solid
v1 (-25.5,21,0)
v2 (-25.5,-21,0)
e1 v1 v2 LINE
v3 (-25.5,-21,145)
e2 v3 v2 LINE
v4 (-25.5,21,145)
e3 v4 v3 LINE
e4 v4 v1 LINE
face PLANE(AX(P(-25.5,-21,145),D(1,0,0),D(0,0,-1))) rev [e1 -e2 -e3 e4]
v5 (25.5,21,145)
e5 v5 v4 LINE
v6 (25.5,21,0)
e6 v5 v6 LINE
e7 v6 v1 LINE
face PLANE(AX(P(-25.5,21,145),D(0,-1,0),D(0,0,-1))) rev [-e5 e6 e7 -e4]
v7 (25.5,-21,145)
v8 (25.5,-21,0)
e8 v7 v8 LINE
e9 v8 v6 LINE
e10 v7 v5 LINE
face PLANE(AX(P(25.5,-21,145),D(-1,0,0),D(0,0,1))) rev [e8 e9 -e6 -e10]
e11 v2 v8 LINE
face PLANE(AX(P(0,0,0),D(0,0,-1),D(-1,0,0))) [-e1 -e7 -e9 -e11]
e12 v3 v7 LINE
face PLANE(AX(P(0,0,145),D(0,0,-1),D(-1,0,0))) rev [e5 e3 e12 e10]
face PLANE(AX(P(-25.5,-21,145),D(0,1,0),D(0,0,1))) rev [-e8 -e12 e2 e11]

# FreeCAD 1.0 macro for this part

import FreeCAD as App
import Part
import Sketcher
from FreeCAD import Vector

doc = App.newDocument("Part")
body = doc.addObject("PartDesign::Body", "Body")

sketch1 = body.newObject("Sketcher::SketchObject", "Sketch")
sketch1.AttachmentSupport = (doc.getObject("XY_Plane"), [""])
sketch1.MapMode = "FlatFace"
sketch1.addGeometry(Part.LineSegment(Vector(-26, 21, 0), Vector(-26, -21, 0)), False)
sketch1.addGeometry(Part.LineSegment(Vector(-26, -21, 0), Vector(26, -21, 0)), False)
sketch1.addGeometry(Part.LineSegment(Vector(26, -21, 0), Vector(26, 21, 0)), False)
sketch1.addGeometry(Part.LineSegment(Vector(26, 21, 0), Vector(-26, 21, 0)), False)
sketch1.addConstraint(Sketcher.Constraint("Coincident", 0, 2, 1, 1))
sketch1.addConstraint(Sketcher.Constraint("Coincident", 1, 2, 2, 1))
sketch1.addConstraint(Sketcher.Constraint("Coincident", 2, 2, 3, 1))
sketch1.addConstraint(Sketcher.Constraint("Coincident", 3, 2, 0, 1))
sketch1.addConstraint(Sketcher.Constraint("Vertical", 0))
sketch1.addConstraint(Sketcher.Constraint("Horizontal", 1))
sketch1.addConstraint(Sketcher.Constraint("Vertical", 2))
sketch1.addConstraint(Sketcher.Constraint("Horizontal", 3))
sketch1.addConstraint(Sketcher.Constraint("Symmetric", 0, 2, 2, 2, -1, 1))
sketch1.addConstraint(Sketcher.Constraint("DistanceX", 1, 1, 1, 2, 51.0))
sketch1.addConstraint(Sketcher.Constraint("DistanceY", 0, 2, 0, 1, 42.0))
pad1 = body.newObject("PartDesign::Pad", "Pad")
pad1.Profile = sketch1
pad1.Length = 145

doc.recompute()
